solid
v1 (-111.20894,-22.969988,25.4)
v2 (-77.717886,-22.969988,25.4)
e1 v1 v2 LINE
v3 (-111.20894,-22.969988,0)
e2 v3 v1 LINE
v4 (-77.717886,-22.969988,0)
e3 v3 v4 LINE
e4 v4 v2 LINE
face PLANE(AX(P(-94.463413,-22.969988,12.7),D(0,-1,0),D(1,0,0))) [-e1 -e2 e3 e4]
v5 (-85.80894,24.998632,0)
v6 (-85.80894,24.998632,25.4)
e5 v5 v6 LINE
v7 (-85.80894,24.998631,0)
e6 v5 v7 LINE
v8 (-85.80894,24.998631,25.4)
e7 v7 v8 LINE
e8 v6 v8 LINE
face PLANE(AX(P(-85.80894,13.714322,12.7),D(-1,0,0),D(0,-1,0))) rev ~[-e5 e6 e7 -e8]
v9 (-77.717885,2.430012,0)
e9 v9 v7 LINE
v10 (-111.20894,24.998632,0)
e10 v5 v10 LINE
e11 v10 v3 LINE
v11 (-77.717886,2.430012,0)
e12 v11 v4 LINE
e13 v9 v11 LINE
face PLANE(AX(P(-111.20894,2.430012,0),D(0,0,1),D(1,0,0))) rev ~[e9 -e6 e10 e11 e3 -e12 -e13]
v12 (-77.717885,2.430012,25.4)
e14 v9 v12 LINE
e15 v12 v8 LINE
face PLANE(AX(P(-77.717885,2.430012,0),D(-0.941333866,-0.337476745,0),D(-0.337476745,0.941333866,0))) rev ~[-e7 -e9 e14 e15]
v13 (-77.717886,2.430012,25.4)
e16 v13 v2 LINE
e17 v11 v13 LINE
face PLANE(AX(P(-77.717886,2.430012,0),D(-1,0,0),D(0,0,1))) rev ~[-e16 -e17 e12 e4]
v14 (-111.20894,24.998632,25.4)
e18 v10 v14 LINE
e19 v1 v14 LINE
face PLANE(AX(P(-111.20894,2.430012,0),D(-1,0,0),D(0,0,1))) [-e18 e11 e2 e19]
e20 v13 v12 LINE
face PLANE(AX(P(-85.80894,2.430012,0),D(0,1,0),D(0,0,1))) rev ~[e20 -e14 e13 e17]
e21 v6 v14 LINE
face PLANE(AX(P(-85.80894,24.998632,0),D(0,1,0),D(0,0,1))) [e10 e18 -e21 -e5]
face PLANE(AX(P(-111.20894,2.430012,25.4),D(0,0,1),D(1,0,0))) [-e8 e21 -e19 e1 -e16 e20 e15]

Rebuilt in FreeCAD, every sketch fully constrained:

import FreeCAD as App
import Part
import Sketcher
Q = App.Units.Quantity


def add_polygon(sketch, points):
    """Adds a closed chain of lines whose ends are joined by coincident constraints."""
    first, n = sketch.GeometryCount, len(points)
    for a, b in zip(points, points[1:] + points[:1]):
        sketch.addGeometry(Part.LineSegment(App.Vector(*a, 0), App.Vector(*b, 0)), False)
    for i in range(n):
        sketch.addConstraint(Sketcher.Constraint("Coincident", first + i, 2, first + (i + 1) % n, 1))

doc = App.newDocument("Part")
params = doc.addObject("Spreadsheet::Sheet", "Params")
for row, (alias, value) in enumerate([
    ("pad1_length", "1 in"),
    ("sketch2_height", "1 in"),
    ("pad2_length", "1 in"),
    ("sketch3_height", "1 in"),
    ("pad3_length", "1 in"),
], start=1):
    params.set(f"A{row}", alias)
    params.set(f"B{row}", "=" + value)
    params.setAlias(f"B{row}", alias)

body = doc.addObject("PartDesign::Body", "Body")

sketch1 = body.newObject("Sketcher::SketchObject", "Sketch")
sketch1.AttachmentSupport = (doc.getObject("XY_Plane"), [""])
sketch1.MapMode = "FlatFace"
add_polygon(sketch1, [(-77.717885, 2.430012), (-85.80894, 24.998631), (-85.80894, 2.430012)])
sketch1.addConstraint(Sketcher.Constraint("Vertical", 1))
sketch1.addConstraint(Sketcher.Constraint("Horizontal", 2))
sketch1.addConstraint(Sketcher.Constraint("DistanceY", 1, 2, 1, 1, 22.568619))
sketch1.addConstraint(Sketcher.Constraint("Distance", 0, 23.975148))
sketch1.addConstraint(Sketcher.Constraint("DistanceX", 0, 2, -1, 1, 85.80894))
sketch1.addConstraint(Sketcher.Constraint("DistanceY", -1, 1, 0, 2, 24.998631))
pad1 = body.newObject("PartDesign::Pad", "Pad")
pad1.Profile = sketch1
pad1.setExpression("Length", "Params.pad1_length")

sketch2 = body.newObject("Sketcher::SketchObject", "Sketch001")
sketch2.AttachmentSupport = (doc.getObject("YZ_Plane"), [""])
sketch2.MapMode = "FlatFace"
sketch2.AttachmentOffset = App.Placement(App.Vector(0, 0, -85.80894), App.Rotation())
add_polygon(sketch2, [(24.998632, 25.4), (24.998632, 0), (2.430012, 0), (2.430012, 25.4)])
sketch2.addConstraint(Sketcher.Constraint("Vertical", 0))
sketch2.addConstraint(Sketcher.Constraint("Horizontal", 1))
sketch2.addConstraint(Sketcher.Constraint("Vertical", 2))
sketch2.addConstraint(Sketcher.Constraint("Horizontal", 3))
sketch2.addConstraint(Sketcher.Constraint("PointOnObject", 0, 2, -1))
sketch2.addConstraint(Sketcher.Constraint("DistanceY", 0, 2, 0, 1, Q("1 in")))
sketch2.addConstraint(Sketcher.Constraint("DistanceX", 1, 2, 1, 1, 22.56862))
sketch2.addConstraint(Sketcher.Constraint("DistanceX", -1, 1, 0, 2, 24.998632))
sketch2.setExpression("Constraints[9]", "Params.sketch2_height")
pad2 = body.newObject("PartDesign::Pad", "Pad001")
pad2.Profile = sketch2
pad2.setExpression("Length", "Params.pad2_length")
pad2.Reversed = True

sketch3 = body.newObject("Sketcher::SketchObject", "Sketch002")
sketch3.AttachmentSupport = (doc.getObject("XZ_Plane"), [""])
sketch3.MapMode = "FlatFace"
sketch3.AttachmentOffset = App.Placement(App.Vector(0, 0, -2.430012), App.Rotation())
add_polygon(sketch3, [(-111.20894, 25.4), (-111.20894, 0), (-77.717886, 0), (-77.717886, 25.4)])
sketch3.addConstraint(Sketcher.Constraint("Vertical", 0))
sketch3.addConstraint(Sketcher.Constraint("Horizontal", 1))
sketch3.addConstraint(Sketcher.Constraint("Vertical", 2))
sketch3.addConstraint(Sketcher.Constraint("Horizontal", 3))
sketch3.addConstraint(Sketcher.Constraint("PointOnObject", 0, 2, -1))
sketch3.addConstraint(Sketcher.Constraint("DistanceY", 0, 2, 0, 1, Q("1 in")))
sketch3.addConstraint(Sketcher.Constraint("DistanceX", 1, 1, 1, 2, 33.491054))
sketch3.addConstraint(Sketcher.Constraint("DistanceX", 0, 2, -1, 1, 111.20894))
sketch3.setExpression("Constraints[9]", "Params.sketch3_height")
pad3 = body.newObject("PartDesign::Pad", "Pad002")
pad3.Profile = sketch3
pad3.setExpression("Length", "Params.pad3_length")

doc.recompute()
